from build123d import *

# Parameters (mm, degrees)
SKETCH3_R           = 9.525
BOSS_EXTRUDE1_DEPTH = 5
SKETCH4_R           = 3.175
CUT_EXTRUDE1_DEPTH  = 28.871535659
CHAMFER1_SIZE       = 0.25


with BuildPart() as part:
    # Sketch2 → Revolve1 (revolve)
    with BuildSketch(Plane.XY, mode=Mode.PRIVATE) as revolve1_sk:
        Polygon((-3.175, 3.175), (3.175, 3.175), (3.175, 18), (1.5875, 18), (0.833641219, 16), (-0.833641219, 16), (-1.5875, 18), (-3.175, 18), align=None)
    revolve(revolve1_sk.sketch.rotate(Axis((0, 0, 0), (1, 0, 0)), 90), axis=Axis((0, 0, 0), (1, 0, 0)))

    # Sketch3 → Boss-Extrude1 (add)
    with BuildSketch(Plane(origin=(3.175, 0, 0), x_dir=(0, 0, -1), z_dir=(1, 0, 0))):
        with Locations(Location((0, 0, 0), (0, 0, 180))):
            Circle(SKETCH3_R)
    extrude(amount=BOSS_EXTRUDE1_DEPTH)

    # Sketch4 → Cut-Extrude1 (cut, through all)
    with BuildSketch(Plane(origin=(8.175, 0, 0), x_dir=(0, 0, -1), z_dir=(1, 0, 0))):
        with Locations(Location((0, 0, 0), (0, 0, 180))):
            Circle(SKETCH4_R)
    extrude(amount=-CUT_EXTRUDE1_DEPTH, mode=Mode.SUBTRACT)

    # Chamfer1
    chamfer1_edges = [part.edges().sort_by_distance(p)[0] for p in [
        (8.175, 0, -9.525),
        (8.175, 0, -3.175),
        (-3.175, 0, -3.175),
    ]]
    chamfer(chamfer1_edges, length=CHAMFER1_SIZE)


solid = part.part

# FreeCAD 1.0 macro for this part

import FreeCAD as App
import Part
import Sketcher
Q = App.Units.Quantity


def edges_at(feature, points):
    """Names of the edges that pass closest to the given points."""
    edges = feature.Shape.Edges
    near = lambda p: min(range(len(edges)), key=lambda i: edges[i].distToShape(Part.Vertex(*p))[0])
    return sorted({f"Edge{near(p) + 1}" for p in points})


def add_polygon(sketch, points):
    """Adds a closed chain of lines whose ends are joined by coincident constraints."""
    first, n = sketch.GeometryCount, len(points)
    for a, b in zip(points, points[1:] + points[:1]):
        sketch.addGeometry(Part.LineSegment(App.Vector(*a, 0), App.Vector(*b, 0)), False)
    for i in range(n):
        sketch.addConstraint(Sketcher.Constraint("Coincident", first + i, 2, first + (i + 1) % n, 1))

doc = App.newDocument("Part")
body = doc.addObject("PartDesign::Body", "Body")

# Sketch on XY plane
sketch1 = doc.addObject("Sketcher::SketchObject", "Sketch")
body.addObject(sketch1)
sketch1.AttachmentSupport = (doc.XY_Plane, [""])
sketch1.MapMode = "FlatFace"
add_polygon(sketch1, [(-3.2, 3.2), (3.2, 3.2), (3.2, 18), (1.6, 18), (0.8, 16), (-0.8, 16), (-1.6, 18), (-3.2, 18)])  # lines 0-7
sketch1.addConstraint([
    Sketcher.Constraint("Horizontal", 0),
    Sketcher.Constraint("Vertical", 1),
    Sketcher.Constraint("Horizontal", 2),
    Sketcher.Constraint("Horizontal", 4),
    Sketcher.Constraint("Horizontal", 6),
    Sketcher.Constraint("Vertical", 7),
    Sketcher.Constraint("Symmetric", 2, 2, 5, 2, -2),
    Sketcher.Constraint("Equal", 2, 6),
    Sketcher.Constraint("Equal", 3, 5),
    Sketcher.Constraint("DistanceX", 0, 1, 0, 2, Q("0.25 in")),
    Sketcher.Constraint("DistanceX", 2, 2, 2, 1, Q("0.0625 in")),
    Sketcher.Constraint("DistanceY", -1, 1, 0, 2, Q("0.125 in")),
    Sketcher.Constraint("DistanceY", 1, 1, 1, 2, 14.825),
    Sketcher.Constraint("DistanceY", -1, 1, 3, 2, 16.0),
    Sketcher.Constraint("Distance", 3, 2.137359),
])
revolution = doc.addObject("PartDesign::Revolution", "Revolution")
body.addObject(revolution)
revolution.Profile = sketch1
revolution.ReferenceAxis = (sketch1, ["H_Axis"])
revolution.Angle = 360

# Sketch on YZ plane
sketch2 = doc.addObject("Sketcher::SketchObject", "Sketch001")
body.addObject(sketch2)
sketch2.AttachmentSupport = (doc.YZ_Plane, [""])
sketch2.MapMode = "FlatFace"
sketch2.AttachmentOffset = App.Placement(App.Vector(0, 0, 0.125 * 25.4), App.Rotation())
sketch2.addGeometry(Part.Circle(App.Vector(0, 0, 0), App.Vector(0, 0, 1), 10), False)
sketch2.addConstraint([
    Sketcher.Constraint("Coincident", 0, 3, -1, 1),
    Sketcher.Constraint("Diameter", 0, Q("0.75 in")),
])
pad1 = doc.addObject("PartDesign::Pad", "Pad")
body.addObject(pad1)
pad1.Profile = sketch2
pad1.Length = 5

# Sketch on YZ plane
sketch3 = doc.addObject("Sketcher::SketchObject", "Sketch002")
body.addObject(sketch3)
sketch3.AttachmentSupport = (doc.YZ_Plane, [""])
sketch3.MapMode = "FlatFace"
sketch3.AttachmentOffset = App.Placement(App.Vector(0, 0, 8.175), App.Rotation())
sketch3.addGeometry(Part.Circle(App.Vector(0, 0, 0), App.Vector(0, 0, 1), 3.2), False)
sketch3.addConstraint([
    Sketcher.Constraint("Coincident", 0, 3, -1, 1),
    Sketcher.Constraint("Diameter", 0, Q("0.25 in")),
])
pocket1 = doc.addObject("PartDesign::Pocket", "Pocket")
body.addObject(pocket1)
pocket1.Profile = sketch3
pocket1.Type = "ThroughAll"
doc.recompute()

chamfer = doc.addObject("PartDesign::Chamfer", "Chamfer")
body.addObject(chamfer)
chamfer.Base = (pocket1, edges_at(pocket1, [(8.175, 0, -9.525), (8.175, 0, -3.175), (-3.175, 0, -3.175)]))
chamfer.Size = 0.25

doc.recompute()
